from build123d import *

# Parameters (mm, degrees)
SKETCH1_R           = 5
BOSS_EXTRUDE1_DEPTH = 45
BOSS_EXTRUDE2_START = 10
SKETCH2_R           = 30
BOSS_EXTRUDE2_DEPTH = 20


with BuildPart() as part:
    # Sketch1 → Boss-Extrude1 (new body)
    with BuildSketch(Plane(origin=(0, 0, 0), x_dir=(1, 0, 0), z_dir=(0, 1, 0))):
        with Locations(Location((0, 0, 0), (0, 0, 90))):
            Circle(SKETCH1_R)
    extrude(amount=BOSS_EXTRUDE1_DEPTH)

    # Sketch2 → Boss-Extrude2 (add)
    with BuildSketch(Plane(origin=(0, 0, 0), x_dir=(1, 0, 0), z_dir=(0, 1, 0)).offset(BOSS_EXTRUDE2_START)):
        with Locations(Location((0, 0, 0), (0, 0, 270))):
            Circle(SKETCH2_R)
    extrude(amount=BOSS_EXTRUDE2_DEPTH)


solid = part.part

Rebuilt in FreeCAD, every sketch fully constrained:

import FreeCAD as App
import Part
import Sketcher
from FreeCAD import Vector

doc = App.newDocument("Part")
body = doc.addObject("PartDesign::Body", "Body")

sketch1 = doc.addObject("Sketcher::SketchObject", "Sketch")
body.addObject(sketch1)
sketch1.AttachmentSupport = (doc.XZ_Plane, [""])
sketch1.MapMode = "FlatFace"
sketch1.addGeometry(Part.Circle(Vector(0, 0, 0), Vector(0, 0, 1), 5), False)
sketch1.addConstraint([
    Sketcher.Constraint("Coincident", 0, 3, -1, 1),
    Sketcher.Constraint("Diameter", 0, 10.0),
])
pad1 = doc.addObject("PartDesign::Pad", "Pad")
body.addObject(pad1)
pad1.Profile = sketch1
pad1.Length = 45
pad1.Reversed = True

sketch2 = doc.addObject("Sketcher::SketchObject", "Sketch001")
body.addObject(sketch2)
sketch2.AttachmentSupport = (doc.XZ_Plane, [""])
sketch2.MapMode = "FlatFace"
sketch2.AttachmentOffset = App.Placement(Vector(0, 0, -10), App.Rotation())
sketch2.addGeometry(Part.Circle(Vector(0, 0, 0), Vector(0, 0, 1), 30), False)
sketch2.addConstraint([
    Sketcher.Constraint("Coincident", 0, 3, -1, 1),
    Sketcher.Constraint("Diameter", 0, 60.0),
])
pad2 = doc.addObject("PartDesign::Pad", "Pad001")
body.addObject(pad2)
pad2.Profile = sketch2
pad2.Length = 20
pad2.Reversed = True

doc.recompute()
